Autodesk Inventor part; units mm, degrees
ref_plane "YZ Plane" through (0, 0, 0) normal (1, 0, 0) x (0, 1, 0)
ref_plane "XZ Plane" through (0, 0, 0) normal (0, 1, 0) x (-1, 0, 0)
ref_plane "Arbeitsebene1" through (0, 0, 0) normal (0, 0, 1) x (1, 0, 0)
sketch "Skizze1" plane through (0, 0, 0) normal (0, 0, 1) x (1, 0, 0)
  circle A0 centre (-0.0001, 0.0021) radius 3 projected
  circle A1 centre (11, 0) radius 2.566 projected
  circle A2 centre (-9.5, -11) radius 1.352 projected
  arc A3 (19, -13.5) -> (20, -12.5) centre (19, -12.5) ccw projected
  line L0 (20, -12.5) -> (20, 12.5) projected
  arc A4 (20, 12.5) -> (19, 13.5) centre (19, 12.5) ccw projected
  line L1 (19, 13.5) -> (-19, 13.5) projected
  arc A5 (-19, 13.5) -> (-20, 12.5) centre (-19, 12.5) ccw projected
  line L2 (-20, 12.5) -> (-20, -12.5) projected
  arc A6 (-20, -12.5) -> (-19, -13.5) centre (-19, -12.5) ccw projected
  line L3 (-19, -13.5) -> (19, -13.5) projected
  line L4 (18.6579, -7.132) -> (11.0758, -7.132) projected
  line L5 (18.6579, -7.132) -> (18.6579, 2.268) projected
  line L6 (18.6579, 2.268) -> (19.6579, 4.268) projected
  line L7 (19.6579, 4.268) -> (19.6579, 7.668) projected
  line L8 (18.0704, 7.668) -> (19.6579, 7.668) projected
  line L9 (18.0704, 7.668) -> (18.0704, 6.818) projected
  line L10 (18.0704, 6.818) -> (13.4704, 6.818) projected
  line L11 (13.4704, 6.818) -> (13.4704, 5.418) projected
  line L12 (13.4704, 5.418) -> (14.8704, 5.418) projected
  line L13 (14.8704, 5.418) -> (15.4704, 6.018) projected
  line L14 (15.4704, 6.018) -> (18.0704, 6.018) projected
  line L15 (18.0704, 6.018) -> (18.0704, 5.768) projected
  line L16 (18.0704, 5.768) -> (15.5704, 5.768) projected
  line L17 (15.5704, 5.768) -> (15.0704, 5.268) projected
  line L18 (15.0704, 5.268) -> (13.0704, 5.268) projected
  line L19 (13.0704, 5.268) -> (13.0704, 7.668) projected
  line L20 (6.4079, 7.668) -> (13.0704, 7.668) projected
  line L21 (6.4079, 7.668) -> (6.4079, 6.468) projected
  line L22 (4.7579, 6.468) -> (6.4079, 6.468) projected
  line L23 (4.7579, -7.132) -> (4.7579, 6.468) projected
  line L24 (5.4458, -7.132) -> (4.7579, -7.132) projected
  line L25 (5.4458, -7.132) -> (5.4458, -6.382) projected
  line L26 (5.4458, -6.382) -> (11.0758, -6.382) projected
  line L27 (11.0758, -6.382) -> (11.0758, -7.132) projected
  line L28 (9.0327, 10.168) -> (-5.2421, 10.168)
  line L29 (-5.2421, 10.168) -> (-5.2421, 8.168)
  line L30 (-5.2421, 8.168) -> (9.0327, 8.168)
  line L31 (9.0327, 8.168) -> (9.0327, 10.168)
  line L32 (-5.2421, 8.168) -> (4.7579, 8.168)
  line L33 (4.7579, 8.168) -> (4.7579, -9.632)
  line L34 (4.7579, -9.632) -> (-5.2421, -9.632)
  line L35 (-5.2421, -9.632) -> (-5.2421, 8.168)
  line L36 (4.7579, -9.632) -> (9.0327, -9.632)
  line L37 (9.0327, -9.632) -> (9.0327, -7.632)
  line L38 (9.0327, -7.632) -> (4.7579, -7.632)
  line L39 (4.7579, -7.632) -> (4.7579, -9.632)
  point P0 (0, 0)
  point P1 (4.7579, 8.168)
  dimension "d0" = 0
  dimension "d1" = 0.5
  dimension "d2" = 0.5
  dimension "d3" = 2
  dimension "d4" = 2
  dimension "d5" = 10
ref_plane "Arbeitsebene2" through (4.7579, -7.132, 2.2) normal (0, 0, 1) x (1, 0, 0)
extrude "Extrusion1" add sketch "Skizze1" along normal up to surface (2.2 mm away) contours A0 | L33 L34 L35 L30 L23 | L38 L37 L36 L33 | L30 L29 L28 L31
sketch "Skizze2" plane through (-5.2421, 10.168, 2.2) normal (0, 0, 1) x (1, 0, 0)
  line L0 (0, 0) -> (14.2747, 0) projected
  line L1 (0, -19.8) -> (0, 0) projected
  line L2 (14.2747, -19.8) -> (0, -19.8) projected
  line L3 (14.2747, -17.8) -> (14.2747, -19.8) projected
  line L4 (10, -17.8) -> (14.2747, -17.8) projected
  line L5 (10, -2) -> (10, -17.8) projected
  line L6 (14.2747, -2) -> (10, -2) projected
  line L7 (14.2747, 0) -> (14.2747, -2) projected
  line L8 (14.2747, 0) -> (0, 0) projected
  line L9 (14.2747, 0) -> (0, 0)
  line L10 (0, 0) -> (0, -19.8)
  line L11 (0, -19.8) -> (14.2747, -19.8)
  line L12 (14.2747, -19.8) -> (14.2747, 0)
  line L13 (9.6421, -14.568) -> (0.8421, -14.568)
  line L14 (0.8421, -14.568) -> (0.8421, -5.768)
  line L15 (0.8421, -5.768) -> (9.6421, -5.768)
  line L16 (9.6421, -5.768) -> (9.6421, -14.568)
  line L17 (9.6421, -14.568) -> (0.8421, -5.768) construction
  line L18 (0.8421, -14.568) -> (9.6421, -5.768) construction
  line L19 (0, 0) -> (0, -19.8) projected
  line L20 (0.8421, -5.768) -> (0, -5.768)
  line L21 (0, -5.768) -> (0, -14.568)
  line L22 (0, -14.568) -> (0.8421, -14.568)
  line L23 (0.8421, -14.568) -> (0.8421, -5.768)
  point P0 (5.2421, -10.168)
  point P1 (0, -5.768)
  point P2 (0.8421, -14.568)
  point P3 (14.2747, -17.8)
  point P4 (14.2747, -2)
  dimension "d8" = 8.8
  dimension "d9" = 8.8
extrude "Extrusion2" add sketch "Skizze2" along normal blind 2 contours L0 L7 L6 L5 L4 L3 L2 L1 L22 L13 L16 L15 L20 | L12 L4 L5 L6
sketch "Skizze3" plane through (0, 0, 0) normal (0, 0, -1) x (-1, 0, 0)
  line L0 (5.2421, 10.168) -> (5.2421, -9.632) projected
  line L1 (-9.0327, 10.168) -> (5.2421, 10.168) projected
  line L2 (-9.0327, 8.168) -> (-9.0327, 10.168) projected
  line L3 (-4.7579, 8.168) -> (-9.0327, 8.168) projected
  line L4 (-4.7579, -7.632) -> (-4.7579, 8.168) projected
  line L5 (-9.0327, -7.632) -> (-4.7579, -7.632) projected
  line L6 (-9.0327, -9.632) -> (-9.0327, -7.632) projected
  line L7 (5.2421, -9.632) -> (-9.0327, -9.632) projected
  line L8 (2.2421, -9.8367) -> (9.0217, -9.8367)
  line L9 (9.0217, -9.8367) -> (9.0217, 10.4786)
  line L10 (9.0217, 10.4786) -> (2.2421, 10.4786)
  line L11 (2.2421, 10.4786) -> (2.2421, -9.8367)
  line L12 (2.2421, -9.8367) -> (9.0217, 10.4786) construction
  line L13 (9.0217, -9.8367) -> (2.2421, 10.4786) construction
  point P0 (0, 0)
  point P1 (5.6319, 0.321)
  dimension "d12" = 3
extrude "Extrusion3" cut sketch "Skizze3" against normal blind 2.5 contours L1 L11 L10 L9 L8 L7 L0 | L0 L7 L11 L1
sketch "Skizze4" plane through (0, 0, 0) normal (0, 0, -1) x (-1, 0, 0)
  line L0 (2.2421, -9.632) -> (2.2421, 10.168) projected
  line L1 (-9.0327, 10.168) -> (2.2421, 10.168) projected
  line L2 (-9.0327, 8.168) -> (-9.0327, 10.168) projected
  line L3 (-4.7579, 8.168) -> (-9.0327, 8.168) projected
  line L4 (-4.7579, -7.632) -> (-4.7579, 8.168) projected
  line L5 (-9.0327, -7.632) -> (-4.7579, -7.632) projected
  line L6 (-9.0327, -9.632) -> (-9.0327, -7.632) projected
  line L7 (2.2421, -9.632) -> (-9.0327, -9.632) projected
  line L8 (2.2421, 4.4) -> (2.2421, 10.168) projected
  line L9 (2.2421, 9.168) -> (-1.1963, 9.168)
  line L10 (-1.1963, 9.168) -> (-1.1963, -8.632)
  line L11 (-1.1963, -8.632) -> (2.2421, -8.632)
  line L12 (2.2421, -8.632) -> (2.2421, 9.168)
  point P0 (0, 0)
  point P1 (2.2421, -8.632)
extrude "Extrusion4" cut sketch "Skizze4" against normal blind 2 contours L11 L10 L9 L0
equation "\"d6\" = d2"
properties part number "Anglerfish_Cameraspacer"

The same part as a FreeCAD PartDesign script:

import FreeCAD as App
import Part
import Sketcher

V = App.Vector
Q = App.Units.Quantity

doc = App.newDocument("Part")
body = doc.addObject("PartDesign::Body", "Body")

sketch1 = body.newObject("Sketcher::SketchObject", "Sketch")
sketch1.AttachmentSupport = (doc.getObject("XY_Plane"), [""])
sketch1.MapMode = "FlatFace"
sketch1.addGeometry([
    Part.LineSegment(V(4.8, -7.6, 0), V(4.8, 8.2, 0)),
    Part.LineSegment(V(4.8, 8.2, 0), V(9, 8.2, 0)),
    Part.LineSegment(V(9, 8.2, 0), V(9, 10.2, 0)),
    Part.LineSegment(V(9, 10.2, 0), V(-5.2, 10.2, 0)),
    Part.LineSegment(V(-5.2, 10.2, 0), V(-5.2, -9.6, 0)),
    Part.LineSegment(V(-5.2, -9.6, 0), V(9, -9.6, 0)),
    Part.LineSegment(V(9, -9.6, 0), V(9, -7.6, 0)),
    Part.LineSegment(V(9, -7.6, 0), V(4.8, -7.6, 0)),
], False)
sketch1.addConstraint([
    Sketcher.Constraint("Coincident", 0, 2, 1, 1),
    Sketcher.Constraint("Coincident", 1, 2, 2, 1),
    Sketcher.Constraint("Coincident", 2, 2, 3, 1),
    Sketcher.Constraint("Coincident", 3, 2, 4, 1),
    Sketcher.Constraint("Coincident", 4, 2, 5, 1),
    Sketcher.Constraint("Coincident", 5, 2, 6, 1),
    Sketcher.Constraint("Coincident", 6, 2, 7, 1),
    Sketcher.Constraint("Coincident", 7, 2, 0, 1),
    Sketcher.Constraint("Vertical", 0),
    Sketcher.Constraint("Horizontal", 1),
    Sketcher.Constraint("Vertical", 2),
    Sketcher.Constraint("Horizontal", 3),
    Sketcher.Constraint("Vertical", 4),
    Sketcher.Constraint("Horizontal", 5),
    Sketcher.Constraint("Vertical", 6),
    Sketcher.Constraint("Horizontal", 7),
    Sketcher.Constraint("Vertical", 2, 2, 5, 2),
    Sketcher.Constraint("Equal", 2, 6),
    Sketcher.Constraint("DistanceY", 2, 1, 2, 2, Q("2 mm")),
    Sketcher.Constraint("DistanceX", 3, 2, 0, 2, Q("10 mm")),
    Sketcher.Constraint("DistanceY", 0, 1, 0, 2, Q("15.8 mm")),
    Sketcher.Constraint("DistanceX", 1, 1, 1, 2, Q("4.2748 mm")),
    Sketcher.Constraint("DistanceX", -1, 1, 0, 2, Q("4.758 mm")),
    Sketcher.Constraint("DistanceY", -1, 1, 0, 2, Q("8.168 mm")),
])
pad1 = body.newObject("PartDesign::Pad", "Pad")
pad1.Profile = sketch1
pad1.Length = 2.2

sketch2 = body.newObject("Sketcher::SketchObject", "Sketch001")
sketch2.AttachmentSupport = (doc.getObject("XY_Plane"), [""])
sketch2.MapMode = "FlatFace"
sketch2.AttachmentOffset = App.Placement(V(0, 0, 2.2), App.Rotation())
sketch2.addGeometry([
    Part.LineSegment(V(9, 10, 0), V(-5, 10, 0)),
    Part.LineSegment(V(-5, 10, 0), V(-5, 4, 0)),
    Part.LineSegment(V(-5, 4, 0), V(4, 4, 0)),
    Part.LineSegment(V(4, 4, 0), V(4, -4, 0)),
    Part.LineSegment(V(4, -4, 0), V(-5, -4, 0)),
    Part.LineSegment(V(-5, -4, 0), V(-5, -10, 0)),
    Part.LineSegment(V(-5, -10, 0), V(9, -10, 0)),
    Part.LineSegment(V(9, -10, 0), V(9, 10, 0)),
], False)
sketch2.addConstraint([
    Sketcher.Constraint("Coincident", 0, 2, 1, 1),
    Sketcher.Constraint("Coincident", 1, 2, 2, 1),
    Sketcher.Constraint("Coincident", 2, 2, 3, 1),
    Sketcher.Constraint("Coincident", 3, 2, 4, 1),
    Sketcher.Constraint("Coincident", 4, 2, 5, 1),
    Sketcher.Constraint("Coincident", 5, 2, 6, 1),
    Sketcher.Constraint("Coincident", 6, 2, 7, 1),
    Sketcher.Constraint("Coincident", 7, 2, 0, 1),
    Sketcher.Constraint("Horizontal", 0),
    Sketcher.Constraint("Vertical", 1),
    Sketcher.Constraint("Horizontal", 2),
    Sketcher.Constraint("Vertical", 3),
    Sketcher.Constraint("Horizontal", 4),
    Sketcher.Constraint("Vertical", 5),
    Sketcher.Constraint("Horizontal", 6),
    Sketcher.Constraint("Vertical", 7),
    Sketcher.Constraint("Symmetric", 1, 2, 4, 2, -1),
    Sketcher.Constraint("DistanceY", 3, 2, 3, 1, Q("8.8 mm")),
    Sketcher.Constraint("DistanceY", 7, 1, 7, 2, Q("19.8 mm")),
    Sketcher.Constraint("DistanceX", -1, 1, 2, 2, Q("4.4 mm")),
    Sketcher.Constraint("DistanceX", 2, 1, 2, 2, Q("9.642 mm")),
    Sketcher.Constraint("DistanceY", 1, 2, 1, 1, Q("5.768 mm")),
    Sketcher.Constraint("DistanceX", 0, 2, 0, 1, Q("14.2747 mm")),
])
pad2 = body.newObject("PartDesign::Pad", "Pad001")
pad2.Profile = sketch2
pad2.Length = 2

sketch3 = body.newObject("Sketcher::SketchObject", "Sketch002")
sketch3.AttachmentSupport = (doc.getObject("XY_Plane"), [""])
sketch3.MapMode = "FlatFace"
sketch3.addGeometry([
    Part.LineSegment(V(-2, 10, 0), V(-2, -10, 0)),
    Part.LineSegment(V(-2, -10, 0), V(-9, -10, 0)),
    Part.LineSegment(V(-9, -10, 0), V(-9, 10, 0)),
    Part.LineSegment(V(-9, 10, 0), V(-2, 10, 0)),
], False)
sketch3.addConstraint([
    Sketcher.Constraint("Coincident", 0, 2, 1, 1),
    Sketcher.Constraint("Coincident", 1, 2, 2, 1),
    Sketcher.Constraint("Coincident", 2, 2, 3, 1),
    Sketcher.Constraint("Coincident", 3, 2, 0, 1),
    Sketcher.Constraint("Vertical", 0),
    Sketcher.Constraint("Horizontal", 1),
    Sketcher.Constraint("Vertical", 2),
    Sketcher.Constraint("Horizontal", 3),
    Sketcher.Constraint("DistanceX", 1, 2, 1, 1, Q("6.7796 mm")),
    Sketcher.Constraint("DistanceY", 0, 2, 0, 1, Q("20.3153 mm")),
    Sketcher.Constraint("DistanceX", 0, 2, -1, 1, Q("2.242 mm")),
    Sketcher.Constraint("DistanceY", 0, 2, -1, 1, Q("9.8367 mm")),
])
pocket1 = body.newObject("PartDesign::Pocket", "Pocket")
pocket1.Profile = sketch3
pocket1.Length = 2.5
pocket1.Reversed = True

sketch4 = body.newObject("Sketcher::SketchObject", "Sketch003")
sketch4.AttachmentSupport = (doc.getObject("XY_Plane"), [""])
sketch4.MapMode = "FlatFace"
sketch4.addGeometry([
    Part.LineSegment(V(1.2, -8.6, 0), V(-2.2, -8.6, 0)),
    Part.LineSegment(V(-2.2, -8.6, 0), V(-2.2, 9.2, 0)),
    Part.LineSegment(V(-2.2, 9.2, 0), V(1.2, 9.2, 0)),
    Part.LineSegment(V(1.2, 9.2, 0), V(1.2, -8.6, 0)),
], False)
sketch4.addConstraint([
    Sketcher.Constraint("Coincident", 0, 2, 1, 1),
    Sketcher.Constraint("Coincident", 1, 2, 2, 1),
    Sketcher.Constraint("Coincident", 2, 2, 3, 1),
    Sketcher.Constraint("Coincident", 3, 2, 0, 1),
    Sketcher.Constraint("Horizontal", 0),
    Sketcher.Constraint("Vertical", 1),
    Sketcher.Constraint("Horizontal", 2),
    Sketcher.Constraint("Vertical", 3),
    Sketcher.Constraint("DistanceY", 1, 1, 1, 2, Q("17.8 mm")),
    Sketcher.Constraint("DistanceX", 0, 2, 0, 1, Q("3.4384 mm")),
    Sketcher.Constraint("DistanceX", 0, 2, -1, 1, Q("2.242 mm")),
    Sketcher.Constraint("DistanceY", 0, 2, -1, 1, Q("8.632 mm")),
])
pocket2 = body.newObject("PartDesign::Pocket", "Pocket001")
pocket2.Profile = sketch4
pocket2.Length = 2
pocket2.Reversed = True

doc.recompute()
